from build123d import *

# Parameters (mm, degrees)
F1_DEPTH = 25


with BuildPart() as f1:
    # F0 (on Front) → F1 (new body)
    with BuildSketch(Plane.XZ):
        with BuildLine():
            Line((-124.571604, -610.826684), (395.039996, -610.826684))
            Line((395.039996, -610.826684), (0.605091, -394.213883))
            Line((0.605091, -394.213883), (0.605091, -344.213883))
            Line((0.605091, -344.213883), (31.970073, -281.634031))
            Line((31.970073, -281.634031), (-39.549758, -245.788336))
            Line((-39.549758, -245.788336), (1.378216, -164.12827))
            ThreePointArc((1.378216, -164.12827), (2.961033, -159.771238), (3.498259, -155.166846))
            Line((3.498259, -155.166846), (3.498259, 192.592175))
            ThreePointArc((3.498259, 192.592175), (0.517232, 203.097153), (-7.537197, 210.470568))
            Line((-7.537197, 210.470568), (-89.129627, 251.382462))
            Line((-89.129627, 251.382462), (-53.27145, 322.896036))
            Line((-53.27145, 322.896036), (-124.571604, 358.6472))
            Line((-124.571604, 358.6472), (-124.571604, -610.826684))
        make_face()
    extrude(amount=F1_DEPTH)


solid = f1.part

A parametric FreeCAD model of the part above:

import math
import FreeCAD as App
import Part
import Sketcher
from FreeCAD import Vector
Q = App.Units.Quantity

doc = App.newDocument("Part")
body = doc.addObject("PartDesign::Body", "Body")

# Sketch on XZ plane
sketch1 = body.newObject("Sketcher::SketchObject", "Sketch")
sketch1.AttachmentSupport = (doc.getObject("XZ_Plane"), [""])
sketch1.MapMode = "FlatFace"
sketch1.addGeometry([
    Part.LineSegment(Vector(-125, -611, 0), Vector(395, -611, 0)),  # 0
    Part.LineSegment(Vector(395, -611, 0), Vector(1, -394, 0)),  # 1
    Part.LineSegment(Vector(1, -394, 0), Vector(1, -344, 0)),  # 2
    Part.LineSegment(Vector(1, -344, 0), Vector(32, -282, 0)),  # 3
    Part.LineSegment(Vector(32, -282, 0), Vector(-40, -246, 0)),  # 4
    Part.LineSegment(Vector(-40, -246, 0), Vector(1, -164, 0)),  # 5
    Part.ArcOfCircle(Part.Circle(Vector(-17, -155, 0), Vector(0, 0, 1), 20), math.radians(-27), math.radians(0)),  # 6
    Part.LineSegment(Vector(3, -155, 0), Vector(3, 193, 0)),  # 7
    Part.ArcOfCircle(Part.Circle(Vector(-17, 193, 0), Vector(0, 0, 1), 20), math.radians(0), math.radians(63)),  # 8
    Part.LineSegment(Vector(-8, 210, 0), Vector(-89, 251, 0)),  # 9
    Part.LineSegment(Vector(-89, 251, 0), Vector(-53, 323, 0)),  # 10
    Part.LineSegment(Vector(-53, 323, 0), Vector(-125, 359, 0)),  # 11
    Part.LineSegment(Vector(-125, 359, 0), Vector(-125, -611, 0)),  # 12
], False)
sketch1.addConstraint([
    Sketcher.Constraint("Coincident", 0, 2, 1, 1),
    Sketcher.Constraint("Coincident", 1, 2, 2, 1),
    Sketcher.Constraint("Coincident", 2, 2, 3, 1),
    Sketcher.Constraint("Coincident", 3, 2, 4, 1),
    Sketcher.Constraint("Coincident", 4, 2, 5, 1),
    Sketcher.Constraint("Tangent", 5, 2, 6, 1),
    Sketcher.Constraint("Tangent", 6, 2, 7, 1),
    Sketcher.Constraint("Tangent", 7, 2, 8, 1),
    Sketcher.Constraint("Tangent", 8, 2, 9, 1),
    Sketcher.Constraint("Coincident", 9, 2, 10, 1),
    Sketcher.Constraint("Coincident", 10, 2, 11, 1),
    Sketcher.Constraint("Coincident", 11, 2, 12, 1),
    Sketcher.Constraint("Coincident", 12, 2, 0, 1),
    Sketcher.Constraint("Horizontal", 0),
    Sketcher.Constraint("Vertical", 2),
    Sketcher.Constraint("Vertical", 7),
    Sketcher.Constraint("Vertical", 12),
    Sketcher.Constraint("Perpendicular", 3, 4),
    Sketcher.Constraint("Perpendicular", 4, 5),
    Sketcher.Constraint("Perpendicular", 9, 10),
    Sketcher.Constraint("Perpendicular", 10, 11),
    Sketcher.Constraint("Equal", 4, 10),
    Sketcher.Constraint("Radius", 8, 19.999998),
    Sketcher.Constraint("DistanceY", 2, 1, 2, 2, 50.0),
    Sketcher.Constraint("Distance", 1, 450.0),
    Sketcher.Constraint("Distance", 3, 70.0),
    Sketcher.Constraint("Distance", 4, 80.0),
    Sketcher.Constraint("Angle", 3, Q("63.38 deg")),
    Sketcher.Constraint("Angle", 9, Q("153.37 deg")),
    Sketcher.Constraint("DistanceX", 0, 1, 0, 2, 519.6116),
    Sketcher.Constraint("Radius", 6, 19.999994),
    Sketcher.Constraint("Distance", 9, 91.274902),
    Sketcher.Constraint("DistanceY", 7, 1, 7, 2, 347.759021),
    Sketcher.Constraint("DistanceY", -1, 1, 11, 2, 358.6472),
    Sketcher.Constraint("DistanceY", 0, 2, 1, 2, 216.612801),
    Sketcher.Constraint("Distance", 5, 91.342572),
    Sketcher.Constraint("DistanceX", 8, 3, -1, 1, 16.501739),
])
pad1 = body.newObject("PartDesign::Pad", "Pad")
pad1.Profile = sketch1
pad1.Length = 25

doc.recompute()
